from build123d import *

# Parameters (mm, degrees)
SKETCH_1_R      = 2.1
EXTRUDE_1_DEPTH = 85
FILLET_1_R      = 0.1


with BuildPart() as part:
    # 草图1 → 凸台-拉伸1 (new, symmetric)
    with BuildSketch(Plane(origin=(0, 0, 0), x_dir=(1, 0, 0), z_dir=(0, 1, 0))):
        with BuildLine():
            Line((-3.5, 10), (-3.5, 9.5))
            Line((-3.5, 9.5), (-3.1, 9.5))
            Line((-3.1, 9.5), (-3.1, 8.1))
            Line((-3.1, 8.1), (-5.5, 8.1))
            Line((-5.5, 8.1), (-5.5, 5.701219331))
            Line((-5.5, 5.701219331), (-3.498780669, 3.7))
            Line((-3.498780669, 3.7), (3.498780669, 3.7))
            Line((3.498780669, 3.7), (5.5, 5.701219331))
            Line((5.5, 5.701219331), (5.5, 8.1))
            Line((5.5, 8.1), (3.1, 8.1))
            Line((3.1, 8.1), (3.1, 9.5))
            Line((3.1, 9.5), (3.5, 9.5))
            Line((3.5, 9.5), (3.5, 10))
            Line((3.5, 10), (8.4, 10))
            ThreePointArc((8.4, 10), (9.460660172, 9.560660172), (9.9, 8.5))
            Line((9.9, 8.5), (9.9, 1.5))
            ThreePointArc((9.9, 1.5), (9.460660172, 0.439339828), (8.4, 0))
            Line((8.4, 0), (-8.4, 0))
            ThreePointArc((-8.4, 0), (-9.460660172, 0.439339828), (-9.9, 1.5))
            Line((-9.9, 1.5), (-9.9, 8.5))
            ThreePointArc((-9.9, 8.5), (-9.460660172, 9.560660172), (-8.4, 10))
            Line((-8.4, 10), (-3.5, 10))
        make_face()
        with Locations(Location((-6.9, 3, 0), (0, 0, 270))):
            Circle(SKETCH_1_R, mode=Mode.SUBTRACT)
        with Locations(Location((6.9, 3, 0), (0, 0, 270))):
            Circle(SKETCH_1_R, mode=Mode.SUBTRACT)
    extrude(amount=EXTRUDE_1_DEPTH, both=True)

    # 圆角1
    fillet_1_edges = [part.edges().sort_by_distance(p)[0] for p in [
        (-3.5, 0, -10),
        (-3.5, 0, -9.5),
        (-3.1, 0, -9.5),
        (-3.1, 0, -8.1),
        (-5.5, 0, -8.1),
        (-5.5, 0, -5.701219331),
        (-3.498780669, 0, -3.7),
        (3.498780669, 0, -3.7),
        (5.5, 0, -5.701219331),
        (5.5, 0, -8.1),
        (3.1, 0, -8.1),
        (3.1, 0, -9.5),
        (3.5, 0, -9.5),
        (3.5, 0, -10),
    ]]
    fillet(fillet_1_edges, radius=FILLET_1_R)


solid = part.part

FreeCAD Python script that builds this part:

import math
import FreeCAD as App
import Part
import Sketcher


def edges_at(feature, points):
    """Names of the edges that pass closest to the given points."""
    edges = feature.Shape.Edges
    near = lambda p: min(range(len(edges)), key=lambda i: edges[i].distToShape(Part.Vertex(*p))[0])
    return sorted({f"Edge{near(p) + 1}" for p in points})

doc = App.newDocument("Part")
params = doc.addObject("Spreadsheet::Sheet", "Params")
for row, (alias, value) in enumerate([
    ("sketch1_diameter", "4.2 mm"),
    ("sketch1_radius", "1.5 mm"),
    ("sketch1_height", "7 mm"),
    ("sketch1_width", "4.9 mm"),
    ("sketch1_width2", "16.8 mm"),
    ("pad1_length", "170 mm"),
    ("fillet_radius", "0.1 mm"),
], start=1):
    params.set(f"A{row}", alias)
    params.set(f"B{row}", "=" + value)
    params.setAlias(f"B{row}", alias)

body = doc.addObject("PartDesign::Body", "Body")

# Sketch on XZ plane
sketch1 = body.newObject("Sketcher::SketchObject", "Sketch")
sketch1.AttachmentSupport = (doc.getObject("XZ_Plane"), [""])
sketch1.MapMode = "FlatFace"
sketch1.addGeometry([
    Part.LineSegment(App.Vector(-3.5, -9.5, 0), App.Vector(-3.5, -10, 0)),  # 0
    Part.LineSegment(App.Vector(-3.5, -10, 0), App.Vector(-8.4, -10, 0)),  # 1
    Part.ArcOfCircle(Part.Circle(App.Vector(-8.4, -8.5, 0), App.Vector(0, 0, 1), 1.5), math.radians(180), math.radians(270)),  # 2
    Part.LineSegment(App.Vector(-9.9, -8.5, 0), App.Vector(-9.9, -1.5, 0)),  # 3
    Part.ArcOfCircle(Part.Circle(App.Vector(-8.4, -1.5, 0), App.Vector(0, 0, 1), 1.5), math.radians(90), math.radians(180)),  # 4
    Part.LineSegment(App.Vector(-8.4, 0, 0), App.Vector(8.4, 0, 0)),  # 5
    Part.ArcOfCircle(Part.Circle(App.Vector(8.4, -1.5, 0), App.Vector(0, 0, 1), 1.5), math.radians(0), math.radians(90)),  # 6
    Part.LineSegment(App.Vector(9.9, -1.5, 0), App.Vector(9.9, -8.5, 0)),  # 7
    Part.ArcOfCircle(Part.Circle(App.Vector(8.4, -8.5, 0), App.Vector(0, 0, 1), 1.5), math.radians(-90), math.radians(0)),  # 8
    Part.LineSegment(App.Vector(8.4, -10, 0), App.Vector(3.5, -10, 0)),  # 9
    Part.LineSegment(App.Vector(3.5, -10, 0), App.Vector(3.5, -9.5, 0)),  # 10
    Part.LineSegment(App.Vector(3.5, -9.5, 0), App.Vector(3.1, -9.5, 0)),  # 11
    Part.LineSegment(App.Vector(3.1, -9.5, 0), App.Vector(3.1, -8.1, 0)),  # 12
    Part.LineSegment(App.Vector(3.1, -8.1, 0), App.Vector(5.5, -8.1, 0)),  # 13
    Part.LineSegment(App.Vector(5.5, -8.1, 0), App.Vector(5.5, -5.7, 0)),  # 14
    Part.LineSegment(App.Vector(5.5, -5.7, 0), App.Vector(3.5, -3.7, 0)),  # 15
    Part.LineSegment(App.Vector(3.5, -3.7, 0), App.Vector(-3.5, -3.7, 0)),  # 16
    Part.LineSegment(App.Vector(-3.5, -3.7, 0), App.Vector(-5.5, -5.7, 0)),  # 17
    Part.LineSegment(App.Vector(-5.5, -5.7, 0), App.Vector(-5.5, -8.1, 0)),  # 18
    Part.LineSegment(App.Vector(-5.5, -8.1, 0), App.Vector(-3.1, -8.1, 0)),  # 19
    Part.LineSegment(App.Vector(-3.1, -8.1, 0), App.Vector(-3.1, -9.5, 0)),  # 20
    Part.LineSegment(App.Vector(-3.1, -9.5, 0), App.Vector(-3.5, -9.5, 0)),  # 21
    Part.Circle(App.Vector(6.9, -3, 0), App.Vector(0, 0, 1), 2.1),  # 22
    Part.Circle(App.Vector(-6.9, -3, 0), App.Vector(0, 0, 1), 2.1),  # 23
], False)
sketch1.addConstraint([
    Sketcher.Constraint("Coincident", 0, 2, 1, 1),
    Sketcher.Constraint("Tangent", 1, 2, 2, 2),
    Sketcher.Constraint("Tangent", 2, 1, 3, 1),
    Sketcher.Constraint("Tangent", 3, 2, 4, 2),
    Sketcher.Constraint("Tangent", 4, 1, 5, 1),
    Sketcher.Constraint("Tangent", 5, 2, 6, 2),
    Sketcher.Constraint("Tangent", 6, 1, 7, 1),
    Sketcher.Constraint("Tangent", 7, 2, 8, 2),
    Sketcher.Constraint("Tangent", 8, 1, 9, 1),
    Sketcher.Constraint("Coincident", 9, 2, 10, 1),
    Sketcher.Constraint("Coincident", 10, 2, 11, 1),
    Sketcher.Constraint("Coincident", 11, 2, 12, 1),
    Sketcher.Constraint("Coincident", 12, 2, 13, 1),
    Sketcher.Constraint("Coincident", 13, 2, 14, 1),
    Sketcher.Constraint("Coincident", 14, 2, 15, 1),
    Sketcher.Constraint("Coincident", 15, 2, 16, 1),
    Sketcher.Constraint("Coincident", 16, 2, 17, 1),
    Sketcher.Constraint("Coincident", 17, 2, 18, 1),
    Sketcher.Constraint("Coincident", 18, 2, 19, 1),
    Sketcher.Constraint("Coincident", 19, 2, 20, 1),
    Sketcher.Constraint("Coincident", 20, 2, 21, 1),
    Sketcher.Constraint("Coincident", 21, 2, 0, 1),
    Sketcher.Constraint("Vertical", 0),
    Sketcher.Constraint("Horizontal", 1),
    Sketcher.Constraint("Vertical", 3),
    Sketcher.Constraint("Horizontal", 5),
    Sketcher.Constraint("Vertical", 7),
    Sketcher.Constraint("Horizontal", 9),
    Sketcher.Constraint("Vertical", 10),
    Sketcher.Constraint("Horizontal", 11),
    Sketcher.Constraint("Vertical", 12),
    Sketcher.Constraint("Horizontal", 13),
    Sketcher.Constraint("Vertical", 14),
    Sketcher.Constraint("Horizontal", 16),
    Sketcher.Constraint("Vertical", 18),
    Sketcher.Constraint("Horizontal", 19),
    Sketcher.Constraint("Vertical", 20),
    Sketcher.Constraint("Horizontal", 21),
    Sketcher.Constraint("Equal", 2, 4),
    Sketcher.Constraint("Equal", 4, 6),
    Sketcher.Constraint("Equal", 6, 8),
    Sketcher.Constraint("Equal", 22, 23),
    Sketcher.Constraint("Symmetric", 4, 1, 5, 2, -1, 1),
    Sketcher.Constraint("Symmetric", 22, 3, 23, 3, -2),
    Sketcher.Constraint("Symmetric", 0, 2, 9, 2, -2),
    Sketcher.Constraint("Symmetric", 14, 2, 17, 2, -2),
    Sketcher.Constraint("Symmetric", 12, 2, 19, 2, -2),
    Sketcher.Constraint("Perpendicular", 15, 17),
    Sketcher.Constraint("Horizontal", 11, 2, 20, 2),
    Sketcher.Constraint("Equal", 15, 17),
    Sketcher.Constraint("Diameter", 22, 4.2),
    Sketcher.Constraint("Radius", 2, 1.5),
    Sketcher.Constraint("DistanceY", 3, 1, 3, 2, 7.0),
    Sketcher.Constraint("DistanceX", 1, 2, 1, 1, 4.9),
    Sketcher.Constraint("DistanceX", 5, 1, 5, 2, 16.8),
    Sketcher.Constraint("DistanceX", 11, 2, 11, 1, 0.4),
    Sketcher.Constraint("DistanceX", 13, 1, 13, 2, 2.4),
    Sketcher.Constraint("DistanceY", 0, 2, 0, 1, 0.5),
    Sketcher.Constraint("DistanceY", 12, 1, 12, 2, 1.4),
    Sketcher.Constraint("DistanceY", 22, 3, -1, 1, 3.0),
    Sketcher.Constraint("DistanceX", 2, 1, 23, 3, 3.0),
    Sketcher.Constraint("DistanceY", 15, 2, -1, 1, 3.7),
    Sketcher.Constraint("DistanceX", 16, 2, 16, 1, 6.997561),
])
sketch1.setExpression("Constraints[50]", "Params.sketch1_diameter")
sketch1.setExpression("Constraints[51]", "Params.sketch1_radius")
sketch1.setExpression("Constraints[52]", "Params.sketch1_height")
sketch1.setExpression("Constraints[53]", "Params.sketch1_width")
sketch1.setExpression("Constraints[54]", "Params.sketch1_width2")
pad1 = body.newObject("PartDesign::Pad", "Pad")
pad1.Profile = sketch1
pad1.setExpression("Length", "Params.pad1_length")
pad1.Midplane = True
doc.recompute()

fillet = body.newObject("PartDesign::Fillet", "Fillet")
fillet.Base = (pad1, edges_at(pad1, [
    (-3.5, 0, -10),
    (-3.5, 0, -9.5),
    (-3.1, 0, -9.5),
    (-3.1, 0, -8.1),
    (-5.5, 0, -8.1),
    (-5.5, 0, -5.701),
    (-3.499, 0, -3.7),
    (3.499, 0, -3.7),
    (5.5, 0, -5.701),
    (5.5, 0, -8.1),
    (3.1, 0, -8.1),
    (3.1, 0, -9.5),
    (3.5, 0, -9.5),
    (3.5, 0, -10),
]))
fillet.setExpression("Radius", "Params.fillet_radius")

doc.recompute()
